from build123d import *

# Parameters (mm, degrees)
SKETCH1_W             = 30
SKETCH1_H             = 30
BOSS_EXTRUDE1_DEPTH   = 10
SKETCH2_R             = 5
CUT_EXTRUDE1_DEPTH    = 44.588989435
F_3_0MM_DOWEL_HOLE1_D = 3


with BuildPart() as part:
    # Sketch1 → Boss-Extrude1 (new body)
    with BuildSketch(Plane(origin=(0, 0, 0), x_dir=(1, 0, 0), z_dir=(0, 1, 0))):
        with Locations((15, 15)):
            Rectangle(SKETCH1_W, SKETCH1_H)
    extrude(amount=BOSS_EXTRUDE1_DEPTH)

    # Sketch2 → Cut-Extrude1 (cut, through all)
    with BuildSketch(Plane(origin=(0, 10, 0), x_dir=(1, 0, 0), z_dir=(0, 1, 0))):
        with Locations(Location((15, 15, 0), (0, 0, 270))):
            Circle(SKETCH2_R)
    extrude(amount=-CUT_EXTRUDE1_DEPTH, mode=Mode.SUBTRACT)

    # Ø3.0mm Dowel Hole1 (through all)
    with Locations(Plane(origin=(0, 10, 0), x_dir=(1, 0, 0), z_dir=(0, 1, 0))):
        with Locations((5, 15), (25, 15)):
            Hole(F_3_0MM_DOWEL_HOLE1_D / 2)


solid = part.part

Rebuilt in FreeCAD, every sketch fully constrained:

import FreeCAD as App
import Part
import Sketcher
from FreeCAD import Vector


def add_polygon(sketch, points):
    """Adds a closed chain of lines whose ends are joined by coincident constraints."""
    first, n = sketch.GeometryCount, len(points)
    for a, b in zip(points, points[1:] + points[:1]):
        sketch.addGeometry(Part.LineSegment(App.Vector(*a, 0), App.Vector(*b, 0)), False)
    for i in range(n):
        sketch.addConstraint(Sketcher.Constraint("Coincident", first + i, 2, first + (i + 1) % n, 1))

doc = App.newDocument("Part")
body = doc.addObject("PartDesign::Body", "Body")

# Sketch on XZ plane
sketch1 = body.newObject("Sketcher::SketchObject", "Sketch")
sketch1.AttachmentSupport = (doc.getObject("XZ_Plane"), [""])
sketch1.MapMode = "FlatFace"
add_polygon(sketch1, [(0, -30), (0, 0), (30, 0), (30, -30)])  # lines 0-3
sketch1.addConstraint([
    Sketcher.Constraint("Vertical", 0),
    Sketcher.Constraint("Horizontal", 1),
    Sketcher.Constraint("Vertical", 2),
    Sketcher.Constraint("Horizontal", 3),
    Sketcher.Constraint("Coincident", 0, 2, -1, 1),
    Sketcher.Constraint("Equal", 3, 0),
    Sketcher.Constraint("DistanceX", 1, 1, 1, 2, 30.0),
])
pad1 = body.newObject("PartDesign::Pad", "Pad")
pad1.Profile = sketch1
pad1.Length = 10
pad1.Reversed = True

# Sketch on XZ plane
sketch2 = body.newObject("Sketcher::SketchObject", "Sketch001")
sketch2.AttachmentSupport = (doc.getObject("XZ_Plane"), [""])
sketch2.MapMode = "FlatFace"
sketch2.AttachmentOffset = App.Placement(Vector(0, 0, -10), App.Rotation())
sketch2.addGeometry(Part.Circle(Vector(15, -15, 0), Vector(0, 0, 1), 5), False)
sketch2.addConstraint([
    Sketcher.Constraint("Diameter", 0, 10.0),
    Sketcher.Constraint("DistanceX", -1, 1, 0, 3, 15.0),
    Sketcher.Constraint("DistanceY", 0, 3, -1, 1, 15.0),
])
pocket1 = body.newObject("PartDesign::Pocket", "Pocket")
pocket1.Profile = sketch2
pocket1.Type = "ThroughAll"
pocket1.Reversed = True

# Sketch on XZ plane
sketch3 = body.newObject("Sketcher::SketchObject", "Sketch002")
sketch3.AttachmentSupport = (doc.getObject("XZ_Plane"), [""])
sketch3.MapMode = "FlatFace"
sketch3.AttachmentOffset = App.Placement(Vector(0, 0, -10), App.Rotation())
sketch3.addGeometry([
    Part.Circle(Vector(5, -15, 0), Vector(0, 0, 1), 1.5),
    Part.Circle(Vector(25, -15, 0), Vector(0, 0, 1), 1.5),
], False)
sketch3.addConstraint([
    Sketcher.Constraint("Equal", 0, 1),
    Sketcher.Constraint("Horizontal", 0, 3, 1, 3),
    Sketcher.Constraint("Diameter", 0, 3.0),
    Sketcher.Constraint("DistanceX", -1, 1, 0, 3, 5.0),
    Sketcher.Constraint("DistanceY", 0, 3, -1, 1, 15.0),
    Sketcher.Constraint("DistanceX", -1, 1, 1, 3, 25.0),
])
doc.recompute()
hole = body.newObject("PartDesign::Hole", "Hole")
hole.Profile = sketch3
hole.ThreadType = "None"
hole.Diameter = 3
hole.DepthType = "ThroughAll"
hole.Reversed = True

doc.recompute()
